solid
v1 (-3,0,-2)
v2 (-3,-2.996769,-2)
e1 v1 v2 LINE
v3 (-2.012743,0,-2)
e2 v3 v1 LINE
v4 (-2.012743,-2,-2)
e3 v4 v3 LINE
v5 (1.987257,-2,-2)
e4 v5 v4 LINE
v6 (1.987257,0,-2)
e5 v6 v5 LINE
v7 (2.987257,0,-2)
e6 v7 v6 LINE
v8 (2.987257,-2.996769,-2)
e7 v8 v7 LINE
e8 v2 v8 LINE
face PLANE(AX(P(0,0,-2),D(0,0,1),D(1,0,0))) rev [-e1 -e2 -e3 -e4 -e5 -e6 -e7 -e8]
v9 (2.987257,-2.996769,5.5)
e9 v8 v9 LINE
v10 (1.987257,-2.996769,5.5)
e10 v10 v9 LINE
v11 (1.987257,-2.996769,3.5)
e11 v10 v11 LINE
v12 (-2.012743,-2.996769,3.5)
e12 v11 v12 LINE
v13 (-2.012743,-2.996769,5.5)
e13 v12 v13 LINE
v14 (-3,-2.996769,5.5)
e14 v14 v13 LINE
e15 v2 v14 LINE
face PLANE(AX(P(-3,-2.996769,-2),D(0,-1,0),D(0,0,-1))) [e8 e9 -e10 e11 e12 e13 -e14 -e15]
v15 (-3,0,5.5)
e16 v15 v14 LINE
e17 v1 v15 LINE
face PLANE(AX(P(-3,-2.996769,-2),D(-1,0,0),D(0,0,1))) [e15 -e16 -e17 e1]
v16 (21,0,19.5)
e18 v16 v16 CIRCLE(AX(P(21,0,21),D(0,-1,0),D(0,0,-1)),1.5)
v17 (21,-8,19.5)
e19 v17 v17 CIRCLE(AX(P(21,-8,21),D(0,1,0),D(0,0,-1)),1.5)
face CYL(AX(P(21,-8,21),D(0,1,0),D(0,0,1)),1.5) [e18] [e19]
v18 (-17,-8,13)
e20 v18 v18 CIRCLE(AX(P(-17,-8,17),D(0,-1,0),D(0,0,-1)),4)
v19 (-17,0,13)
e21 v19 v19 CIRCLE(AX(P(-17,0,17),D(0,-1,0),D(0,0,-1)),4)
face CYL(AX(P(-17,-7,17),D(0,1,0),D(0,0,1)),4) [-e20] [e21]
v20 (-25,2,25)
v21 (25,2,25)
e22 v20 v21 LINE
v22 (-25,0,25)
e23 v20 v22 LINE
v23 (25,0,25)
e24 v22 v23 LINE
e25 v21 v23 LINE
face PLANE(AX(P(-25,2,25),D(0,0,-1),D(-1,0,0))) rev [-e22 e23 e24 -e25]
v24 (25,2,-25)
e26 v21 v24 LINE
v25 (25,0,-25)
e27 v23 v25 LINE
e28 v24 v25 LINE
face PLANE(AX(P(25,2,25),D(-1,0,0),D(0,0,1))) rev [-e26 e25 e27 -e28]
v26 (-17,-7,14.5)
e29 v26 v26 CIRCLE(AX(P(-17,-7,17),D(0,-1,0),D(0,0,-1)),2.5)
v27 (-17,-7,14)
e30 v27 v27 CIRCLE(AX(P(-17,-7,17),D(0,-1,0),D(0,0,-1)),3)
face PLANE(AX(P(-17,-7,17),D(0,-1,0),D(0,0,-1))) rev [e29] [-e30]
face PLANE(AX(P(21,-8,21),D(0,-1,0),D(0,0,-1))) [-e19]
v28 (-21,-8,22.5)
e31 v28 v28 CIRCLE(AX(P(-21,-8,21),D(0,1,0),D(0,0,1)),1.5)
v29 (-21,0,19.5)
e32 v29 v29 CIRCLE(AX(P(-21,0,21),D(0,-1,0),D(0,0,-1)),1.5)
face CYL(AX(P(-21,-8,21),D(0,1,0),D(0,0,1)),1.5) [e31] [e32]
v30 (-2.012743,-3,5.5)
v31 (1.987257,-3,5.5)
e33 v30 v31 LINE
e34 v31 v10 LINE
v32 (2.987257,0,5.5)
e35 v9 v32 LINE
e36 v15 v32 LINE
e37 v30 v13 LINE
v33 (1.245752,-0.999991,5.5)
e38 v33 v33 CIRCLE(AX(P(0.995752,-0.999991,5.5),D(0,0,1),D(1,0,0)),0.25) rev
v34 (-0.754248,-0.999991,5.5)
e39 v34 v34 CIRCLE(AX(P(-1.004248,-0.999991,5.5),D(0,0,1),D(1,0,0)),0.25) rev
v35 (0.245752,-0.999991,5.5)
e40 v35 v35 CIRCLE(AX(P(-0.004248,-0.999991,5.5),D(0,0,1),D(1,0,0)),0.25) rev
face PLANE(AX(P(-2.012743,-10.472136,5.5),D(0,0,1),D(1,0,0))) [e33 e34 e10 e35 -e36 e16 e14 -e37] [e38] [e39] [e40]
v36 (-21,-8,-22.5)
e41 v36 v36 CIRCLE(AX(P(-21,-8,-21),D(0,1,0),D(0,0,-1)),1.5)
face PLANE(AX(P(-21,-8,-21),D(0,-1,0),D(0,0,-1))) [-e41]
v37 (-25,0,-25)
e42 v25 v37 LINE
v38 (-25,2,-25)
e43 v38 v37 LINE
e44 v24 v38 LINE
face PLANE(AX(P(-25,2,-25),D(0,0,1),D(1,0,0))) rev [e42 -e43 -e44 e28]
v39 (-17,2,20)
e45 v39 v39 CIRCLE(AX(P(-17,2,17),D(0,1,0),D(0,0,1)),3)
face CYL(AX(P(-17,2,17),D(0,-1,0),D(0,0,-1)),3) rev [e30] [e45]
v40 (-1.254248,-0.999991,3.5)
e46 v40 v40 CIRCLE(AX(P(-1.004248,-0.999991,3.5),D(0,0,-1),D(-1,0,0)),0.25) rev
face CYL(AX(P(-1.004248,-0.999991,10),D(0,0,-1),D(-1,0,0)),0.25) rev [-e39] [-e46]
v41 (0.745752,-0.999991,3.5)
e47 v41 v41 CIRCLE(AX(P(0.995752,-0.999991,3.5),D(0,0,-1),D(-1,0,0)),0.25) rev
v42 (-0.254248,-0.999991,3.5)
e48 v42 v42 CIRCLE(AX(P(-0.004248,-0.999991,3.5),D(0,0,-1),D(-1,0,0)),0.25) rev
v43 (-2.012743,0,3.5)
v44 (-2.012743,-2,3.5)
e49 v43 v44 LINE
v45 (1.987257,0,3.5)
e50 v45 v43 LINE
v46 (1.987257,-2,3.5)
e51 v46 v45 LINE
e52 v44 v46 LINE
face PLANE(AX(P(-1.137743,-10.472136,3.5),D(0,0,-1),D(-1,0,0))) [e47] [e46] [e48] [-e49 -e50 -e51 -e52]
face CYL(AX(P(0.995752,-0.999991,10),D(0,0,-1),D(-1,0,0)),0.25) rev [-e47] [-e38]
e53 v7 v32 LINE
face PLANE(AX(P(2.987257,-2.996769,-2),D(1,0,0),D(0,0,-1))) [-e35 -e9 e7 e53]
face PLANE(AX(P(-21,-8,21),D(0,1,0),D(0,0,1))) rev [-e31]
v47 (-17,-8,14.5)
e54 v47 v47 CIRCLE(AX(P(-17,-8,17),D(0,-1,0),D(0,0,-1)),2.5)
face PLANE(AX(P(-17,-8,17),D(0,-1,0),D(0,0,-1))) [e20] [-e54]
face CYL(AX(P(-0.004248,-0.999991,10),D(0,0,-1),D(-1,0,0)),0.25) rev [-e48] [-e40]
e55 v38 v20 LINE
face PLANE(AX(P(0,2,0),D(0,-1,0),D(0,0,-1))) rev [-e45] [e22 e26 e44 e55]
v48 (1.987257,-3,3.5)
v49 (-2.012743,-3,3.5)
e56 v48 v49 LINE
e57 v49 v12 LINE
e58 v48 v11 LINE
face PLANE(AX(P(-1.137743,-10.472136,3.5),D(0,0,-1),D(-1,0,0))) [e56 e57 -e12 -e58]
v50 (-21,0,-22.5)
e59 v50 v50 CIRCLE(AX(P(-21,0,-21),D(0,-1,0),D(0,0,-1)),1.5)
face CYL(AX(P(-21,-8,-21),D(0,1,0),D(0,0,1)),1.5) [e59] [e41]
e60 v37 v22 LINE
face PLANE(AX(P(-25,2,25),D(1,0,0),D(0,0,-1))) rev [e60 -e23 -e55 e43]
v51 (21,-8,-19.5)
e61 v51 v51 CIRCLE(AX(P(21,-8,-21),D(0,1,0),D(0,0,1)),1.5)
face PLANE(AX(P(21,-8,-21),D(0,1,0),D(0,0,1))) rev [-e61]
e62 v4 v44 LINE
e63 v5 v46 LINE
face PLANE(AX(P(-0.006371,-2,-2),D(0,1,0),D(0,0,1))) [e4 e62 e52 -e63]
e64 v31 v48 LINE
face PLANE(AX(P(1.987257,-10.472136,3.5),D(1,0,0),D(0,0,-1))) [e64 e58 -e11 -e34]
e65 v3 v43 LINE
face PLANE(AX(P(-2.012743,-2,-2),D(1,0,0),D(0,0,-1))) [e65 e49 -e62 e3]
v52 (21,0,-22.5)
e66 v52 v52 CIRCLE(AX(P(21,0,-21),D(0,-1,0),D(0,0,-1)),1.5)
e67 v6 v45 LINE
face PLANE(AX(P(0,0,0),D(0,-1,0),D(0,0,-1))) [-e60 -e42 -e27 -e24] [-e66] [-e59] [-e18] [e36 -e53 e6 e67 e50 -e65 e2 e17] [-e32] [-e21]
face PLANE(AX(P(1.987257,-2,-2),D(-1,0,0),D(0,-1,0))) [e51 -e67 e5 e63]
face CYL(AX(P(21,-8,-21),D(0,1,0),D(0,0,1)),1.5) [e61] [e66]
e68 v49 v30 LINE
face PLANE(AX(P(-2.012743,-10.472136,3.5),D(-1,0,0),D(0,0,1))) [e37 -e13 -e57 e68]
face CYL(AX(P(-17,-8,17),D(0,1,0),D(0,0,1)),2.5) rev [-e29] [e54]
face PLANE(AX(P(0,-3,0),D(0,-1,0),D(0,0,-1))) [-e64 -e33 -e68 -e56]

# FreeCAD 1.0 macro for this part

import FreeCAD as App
import Part
import Sketcher
from FreeCAD import Vector


def add_polygon(sketch, points):
    """Adds a closed chain of lines whose ends are joined by coincident constraints."""
    first, n = sketch.GeometryCount, len(points)
    for a, b in zip(points, points[1:] + points[:1]):
        sketch.addGeometry(Part.LineSegment(App.Vector(*a, 0), App.Vector(*b, 0)), False)
    for i in range(n):
        sketch.addConstraint(Sketcher.Constraint("Coincident", first + i, 2, first + (i + 1) % n, 1))

doc = App.newDocument("Part")
body = doc.addObject("PartDesign::Body", "Body")

# Sketch on XZ plane
sketch1 = body.newObject("Sketcher::SketchObject", "Sketch")
sketch1.AttachmentSupport = (doc.getObject("XZ_Plane"), [""])
sketch1.MapMode = "FlatFace"
add_polygon(sketch1, [(-25, -25), (-25, 25), (25, 25), (25, -25)])  # lines 0-3
sketch1.addConstraint([
    Sketcher.Constraint("Vertical", 0),
    Sketcher.Constraint("Horizontal", 1),
    Sketcher.Constraint("Vertical", 2),
    Sketcher.Constraint("Horizontal", 3),
    Sketcher.Constraint("Symmetric", 0, 2, 2, 2, -1, 1),
    Sketcher.Constraint("Equal", 3, 0),
    Sketcher.Constraint("DistanceX", 1, 1, 1, 2, 50.0),
])
pad1 = body.newObject("PartDesign::Pad", "Pad")
pad1.Profile = sketch1
pad1.Length = 2
pad1.Reversed = True

# Sketch on XZ plane
sketch2 = body.newObject("Sketcher::SketchObject", "Sketch001")
sketch2.AttachmentSupport = (doc.getObject("XZ_Plane"), [""])
sketch2.MapMode = "FlatFace"
add_polygon(sketch2, [(2, 3.5), (-2, 3.5), (-2, 5.5), (2, 5.5)])  # lines 0-3
sketch2.addConstraint([
    Sketcher.Constraint("Horizontal", 0),
    Sketcher.Constraint("Vertical", 1),
    Sketcher.Constraint("Horizontal", 2),
    Sketcher.Constraint("Vertical", 3),
    Sketcher.Constraint("DistanceX", 0, 2, 0, 1, 4.0),
    Sketcher.Constraint("DistanceY", 1, 1, 1, 2, 2.0),
    Sketcher.Constraint("DistanceY", -1, 1, 0, 2, 3.5),
    Sketcher.Constraint("DistanceX", 0, 2, -1, 1, 2.012743),
])
pad2 = body.newObject("PartDesign::Pad", "Pad001")
pad2.Profile = sketch2
pad2.Length = 3

# Sketch on XY plane
sketch3 = body.newObject("Sketcher::SketchObject", "Sketch002")
sketch3.AttachmentSupport = (doc.getObject("XY_Plane"), [""])
sketch3.MapMode = "FlatFace"
sketch3.addGeometry([
    Part.Circle(Vector(0, -1, 0), Vector(0, 0, 1), 0.25),
    Part.Circle(Vector(-1, -1, 0), Vector(0, 0, 1), 0.25),
    Part.Circle(Vector(1, -1, 0), Vector(0, 0, 1), 0.25),
], False)
sketch3.addConstraint([
    Sketcher.Constraint("Equal", 0, 1),
    Sketcher.Constraint("Equal", 1, 2),
    Sketcher.Constraint("Horizontal", 0, 3, 1, 3),
    Sketcher.Constraint("Horizontal", 1, 3, 2, 3),
    Sketcher.Constraint("Diameter", 0, 0.5),
    Sketcher.Constraint("DistanceX", 1, 3, 0, 3, 1.0),
    Sketcher.Constraint("DistanceX", 0, 3, 2, 3, 1.0),
    Sketcher.Constraint("DistanceY", 0, 3, -1, 1, 0.999991),
    Sketcher.Constraint("DistanceX", 0, 3, -1, 1, 0.004248),
])
pocket1 = body.newObject("PartDesign::Pocket", "Pocket")
pocket1.Profile = sketch3
pocket1.Length = 10
pocket1.Reversed = True

# Sketch on XY plane
sketch4 = body.newObject("Sketcher::SketchObject", "Sketch003")
sketch4.AttachmentSupport = (doc.getObject("XY_Plane"), [""])
sketch4.MapMode = "FlatFace"
add_polygon(sketch4, [(3, 0), (2, 0), (2, -2), (-2, -2), (-2, 0), (-3, 0), (-3, -3), (3, -3)])  # lines 0-7
sketch4.addConstraint([
    Sketcher.Constraint("Horizontal", 0),
    Sketcher.Constraint("Vertical", 1),
    Sketcher.Constraint("Horizontal", 2),
    Sketcher.Constraint("Vertical", 3),
    Sketcher.Constraint("Horizontal", 4),
    Sketcher.Constraint("Vertical", 5),
    Sketcher.Constraint("Horizontal", 6),
    Sketcher.Constraint("Vertical", 7),
    Sketcher.Constraint("PointOnObject", 0, 2, -1),
    Sketcher.Constraint("PointOnObject", 3, 2, -1),
    Sketcher.Constraint("DistanceX", 0, 2, 0, 1, 1.0),
    Sketcher.Constraint("DistanceX", 2, 2, 2, 1, 4.0),
    Sketcher.Constraint("DistanceY", 1, 2, 1, 1, 2.0),
    Sketcher.Constraint("DistanceX", 4, 2, -1, 1, 3.0),
    Sketcher.Constraint("DistanceY", 5, 2, 5, 1, 2.996769),
    Sketcher.Constraint("DistanceX", 4, 2, 4, 1, 0.987257),
])
pad3 = body.newObject("PartDesign::Pad", "Pad002")
pad3.Profile = sketch4
pad3.Type = "TwoLengths"
pad3.Length = 5.5
pad3.Length2 = 2

# Sketch on XZ plane
sketch5 = body.newObject("Sketcher::SketchObject", "Sketch004")
sketch5.AttachmentSupport = (doc.getObject("XZ_Plane"), [""])
sketch5.MapMode = "FlatFace"
sketch5.addGeometry(Part.Circle(Vector(-17, 17, 0), Vector(0, 0, 1), 3), False)
sketch5.addConstraint([
    Sketcher.Constraint("Diameter", 0, 6.0),
    Sketcher.Constraint("DistanceX", 0, 3, -1, 1, 17.0),
    Sketcher.Constraint("DistanceY", -1, 1, 0, 3, 17.0),
])
pocket2 = body.newObject("PartDesign::Pocket", "Pocket001")
pocket2.Profile = sketch5
pocket2.Length = 2

# Sketch on XZ plane
sketch6 = body.newObject("Sketcher::SketchObject", "Sketch005")
sketch6.AttachmentSupport = (doc.getObject("XZ_Plane"), [""])
sketch6.MapMode = "FlatFace"
sketch6.AttachmentOffset = App.Placement(Vector(0, 0, 7), App.Rotation())
sketch6.addGeometry([
    Part.Circle(Vector(-17, 17, 0), Vector(0, 0, 1), 4),
    Part.Circle(Vector(-17, 17, 0), Vector(0, 0, 1), 3),
], False)
sketch6.addConstraint([
    Sketcher.Constraint("Coincident", 1, 3, 0, 3),
    Sketcher.Constraint("Diameter", 0, 8.0),
    Sketcher.Constraint("Diameter", 1, 6.0),
    Sketcher.Constraint("DistanceX", 0, 3, -1, 1, 17.0),
    Sketcher.Constraint("DistanceY", -1, 1, 0, 3, 17.0),
])
pad4 = body.newObject("PartDesign::Pad", "Pad003")
pad4.Profile = sketch6
pad4.Length = 7
pad4.Reversed = True

# Sketch on XZ plane
sketch7 = body.newObject("Sketcher::SketchObject", "Sketch006")
sketch7.AttachmentSupport = (doc.getObject("XZ_Plane"), [""])
sketch7.MapMode = "FlatFace"
sketch7.AttachmentOffset = App.Placement(Vector(0, 0, 8), App.Rotation())
sketch7.addGeometry([
    Part.Circle(Vector(-17, 17, 0), Vector(0, 0, 1), 4),
    Part.Circle(Vector(-17, 17, 0), Vector(0, 0, 1), 2.5),
], False)
sketch7.addConstraint([
    Sketcher.Constraint("Coincident", 1, 3, 0, 3),
    Sketcher.Constraint("Diameter", 0, 8.0),
    Sketcher.Constraint("Diameter", 1, 5.0),
    Sketcher.Constraint("DistanceX", 0, 3, -1, 1, 17.0),
    Sketcher.Constraint("DistanceY", -1, 1, 0, 3, 17.0),
])
pad5 = body.newObject("PartDesign::Pad", "Pad004")
pad5.Profile = sketch7
pad5.Length = 1
pad5.Reversed = True

# Sketch on XZ plane
sketch8 = body.newObject("Sketcher::SketchObject", "Sketch007")
sketch8.AttachmentSupport = (doc.getObject("XZ_Plane"), [""])
sketch8.MapMode = "FlatFace"
sketch8.addGeometry([
    Part.Circle(Vector(-21, 21, 0), Vector(0, 0, 1), 1.5),
    Part.Circle(Vector(21, 21, 0), Vector(0, 0, 1), 1.5),
    Part.Circle(Vector(21, -21, 0), Vector(0, 0, 1), 1.5),
    Part.Circle(Vector(-21, -21, 0), Vector(0, 0, 1), 1.5),
], False)
sketch8.addConstraint([
    Sketcher.Constraint("Equal", 0, 1),
    Sketcher.Constraint("Equal", 1, 2),
    Sketcher.Constraint("Equal", 2, 3),
    Sketcher.Constraint("Symmetric", 0, 3, 2, 3, -1, 1),
    Sketcher.Constraint("Symmetric", 1, 3, 3, 3, -1, 1),
    Sketcher.Constraint("Symmetric", 0, 3, 1, 3, -2),
    Sketcher.Constraint("Diameter", 0, 3.0),
    Sketcher.Constraint("DistanceX", 0, 3, -1, 1, 21.0),
    Sketcher.Constraint("DistanceY", -1, 1, 0, 3, 21.0),
])
pad6 = body.newObject("PartDesign::Pad", "Pad005")
pad6.Profile = sketch8
pad6.Length = 8

doc.recompute()
